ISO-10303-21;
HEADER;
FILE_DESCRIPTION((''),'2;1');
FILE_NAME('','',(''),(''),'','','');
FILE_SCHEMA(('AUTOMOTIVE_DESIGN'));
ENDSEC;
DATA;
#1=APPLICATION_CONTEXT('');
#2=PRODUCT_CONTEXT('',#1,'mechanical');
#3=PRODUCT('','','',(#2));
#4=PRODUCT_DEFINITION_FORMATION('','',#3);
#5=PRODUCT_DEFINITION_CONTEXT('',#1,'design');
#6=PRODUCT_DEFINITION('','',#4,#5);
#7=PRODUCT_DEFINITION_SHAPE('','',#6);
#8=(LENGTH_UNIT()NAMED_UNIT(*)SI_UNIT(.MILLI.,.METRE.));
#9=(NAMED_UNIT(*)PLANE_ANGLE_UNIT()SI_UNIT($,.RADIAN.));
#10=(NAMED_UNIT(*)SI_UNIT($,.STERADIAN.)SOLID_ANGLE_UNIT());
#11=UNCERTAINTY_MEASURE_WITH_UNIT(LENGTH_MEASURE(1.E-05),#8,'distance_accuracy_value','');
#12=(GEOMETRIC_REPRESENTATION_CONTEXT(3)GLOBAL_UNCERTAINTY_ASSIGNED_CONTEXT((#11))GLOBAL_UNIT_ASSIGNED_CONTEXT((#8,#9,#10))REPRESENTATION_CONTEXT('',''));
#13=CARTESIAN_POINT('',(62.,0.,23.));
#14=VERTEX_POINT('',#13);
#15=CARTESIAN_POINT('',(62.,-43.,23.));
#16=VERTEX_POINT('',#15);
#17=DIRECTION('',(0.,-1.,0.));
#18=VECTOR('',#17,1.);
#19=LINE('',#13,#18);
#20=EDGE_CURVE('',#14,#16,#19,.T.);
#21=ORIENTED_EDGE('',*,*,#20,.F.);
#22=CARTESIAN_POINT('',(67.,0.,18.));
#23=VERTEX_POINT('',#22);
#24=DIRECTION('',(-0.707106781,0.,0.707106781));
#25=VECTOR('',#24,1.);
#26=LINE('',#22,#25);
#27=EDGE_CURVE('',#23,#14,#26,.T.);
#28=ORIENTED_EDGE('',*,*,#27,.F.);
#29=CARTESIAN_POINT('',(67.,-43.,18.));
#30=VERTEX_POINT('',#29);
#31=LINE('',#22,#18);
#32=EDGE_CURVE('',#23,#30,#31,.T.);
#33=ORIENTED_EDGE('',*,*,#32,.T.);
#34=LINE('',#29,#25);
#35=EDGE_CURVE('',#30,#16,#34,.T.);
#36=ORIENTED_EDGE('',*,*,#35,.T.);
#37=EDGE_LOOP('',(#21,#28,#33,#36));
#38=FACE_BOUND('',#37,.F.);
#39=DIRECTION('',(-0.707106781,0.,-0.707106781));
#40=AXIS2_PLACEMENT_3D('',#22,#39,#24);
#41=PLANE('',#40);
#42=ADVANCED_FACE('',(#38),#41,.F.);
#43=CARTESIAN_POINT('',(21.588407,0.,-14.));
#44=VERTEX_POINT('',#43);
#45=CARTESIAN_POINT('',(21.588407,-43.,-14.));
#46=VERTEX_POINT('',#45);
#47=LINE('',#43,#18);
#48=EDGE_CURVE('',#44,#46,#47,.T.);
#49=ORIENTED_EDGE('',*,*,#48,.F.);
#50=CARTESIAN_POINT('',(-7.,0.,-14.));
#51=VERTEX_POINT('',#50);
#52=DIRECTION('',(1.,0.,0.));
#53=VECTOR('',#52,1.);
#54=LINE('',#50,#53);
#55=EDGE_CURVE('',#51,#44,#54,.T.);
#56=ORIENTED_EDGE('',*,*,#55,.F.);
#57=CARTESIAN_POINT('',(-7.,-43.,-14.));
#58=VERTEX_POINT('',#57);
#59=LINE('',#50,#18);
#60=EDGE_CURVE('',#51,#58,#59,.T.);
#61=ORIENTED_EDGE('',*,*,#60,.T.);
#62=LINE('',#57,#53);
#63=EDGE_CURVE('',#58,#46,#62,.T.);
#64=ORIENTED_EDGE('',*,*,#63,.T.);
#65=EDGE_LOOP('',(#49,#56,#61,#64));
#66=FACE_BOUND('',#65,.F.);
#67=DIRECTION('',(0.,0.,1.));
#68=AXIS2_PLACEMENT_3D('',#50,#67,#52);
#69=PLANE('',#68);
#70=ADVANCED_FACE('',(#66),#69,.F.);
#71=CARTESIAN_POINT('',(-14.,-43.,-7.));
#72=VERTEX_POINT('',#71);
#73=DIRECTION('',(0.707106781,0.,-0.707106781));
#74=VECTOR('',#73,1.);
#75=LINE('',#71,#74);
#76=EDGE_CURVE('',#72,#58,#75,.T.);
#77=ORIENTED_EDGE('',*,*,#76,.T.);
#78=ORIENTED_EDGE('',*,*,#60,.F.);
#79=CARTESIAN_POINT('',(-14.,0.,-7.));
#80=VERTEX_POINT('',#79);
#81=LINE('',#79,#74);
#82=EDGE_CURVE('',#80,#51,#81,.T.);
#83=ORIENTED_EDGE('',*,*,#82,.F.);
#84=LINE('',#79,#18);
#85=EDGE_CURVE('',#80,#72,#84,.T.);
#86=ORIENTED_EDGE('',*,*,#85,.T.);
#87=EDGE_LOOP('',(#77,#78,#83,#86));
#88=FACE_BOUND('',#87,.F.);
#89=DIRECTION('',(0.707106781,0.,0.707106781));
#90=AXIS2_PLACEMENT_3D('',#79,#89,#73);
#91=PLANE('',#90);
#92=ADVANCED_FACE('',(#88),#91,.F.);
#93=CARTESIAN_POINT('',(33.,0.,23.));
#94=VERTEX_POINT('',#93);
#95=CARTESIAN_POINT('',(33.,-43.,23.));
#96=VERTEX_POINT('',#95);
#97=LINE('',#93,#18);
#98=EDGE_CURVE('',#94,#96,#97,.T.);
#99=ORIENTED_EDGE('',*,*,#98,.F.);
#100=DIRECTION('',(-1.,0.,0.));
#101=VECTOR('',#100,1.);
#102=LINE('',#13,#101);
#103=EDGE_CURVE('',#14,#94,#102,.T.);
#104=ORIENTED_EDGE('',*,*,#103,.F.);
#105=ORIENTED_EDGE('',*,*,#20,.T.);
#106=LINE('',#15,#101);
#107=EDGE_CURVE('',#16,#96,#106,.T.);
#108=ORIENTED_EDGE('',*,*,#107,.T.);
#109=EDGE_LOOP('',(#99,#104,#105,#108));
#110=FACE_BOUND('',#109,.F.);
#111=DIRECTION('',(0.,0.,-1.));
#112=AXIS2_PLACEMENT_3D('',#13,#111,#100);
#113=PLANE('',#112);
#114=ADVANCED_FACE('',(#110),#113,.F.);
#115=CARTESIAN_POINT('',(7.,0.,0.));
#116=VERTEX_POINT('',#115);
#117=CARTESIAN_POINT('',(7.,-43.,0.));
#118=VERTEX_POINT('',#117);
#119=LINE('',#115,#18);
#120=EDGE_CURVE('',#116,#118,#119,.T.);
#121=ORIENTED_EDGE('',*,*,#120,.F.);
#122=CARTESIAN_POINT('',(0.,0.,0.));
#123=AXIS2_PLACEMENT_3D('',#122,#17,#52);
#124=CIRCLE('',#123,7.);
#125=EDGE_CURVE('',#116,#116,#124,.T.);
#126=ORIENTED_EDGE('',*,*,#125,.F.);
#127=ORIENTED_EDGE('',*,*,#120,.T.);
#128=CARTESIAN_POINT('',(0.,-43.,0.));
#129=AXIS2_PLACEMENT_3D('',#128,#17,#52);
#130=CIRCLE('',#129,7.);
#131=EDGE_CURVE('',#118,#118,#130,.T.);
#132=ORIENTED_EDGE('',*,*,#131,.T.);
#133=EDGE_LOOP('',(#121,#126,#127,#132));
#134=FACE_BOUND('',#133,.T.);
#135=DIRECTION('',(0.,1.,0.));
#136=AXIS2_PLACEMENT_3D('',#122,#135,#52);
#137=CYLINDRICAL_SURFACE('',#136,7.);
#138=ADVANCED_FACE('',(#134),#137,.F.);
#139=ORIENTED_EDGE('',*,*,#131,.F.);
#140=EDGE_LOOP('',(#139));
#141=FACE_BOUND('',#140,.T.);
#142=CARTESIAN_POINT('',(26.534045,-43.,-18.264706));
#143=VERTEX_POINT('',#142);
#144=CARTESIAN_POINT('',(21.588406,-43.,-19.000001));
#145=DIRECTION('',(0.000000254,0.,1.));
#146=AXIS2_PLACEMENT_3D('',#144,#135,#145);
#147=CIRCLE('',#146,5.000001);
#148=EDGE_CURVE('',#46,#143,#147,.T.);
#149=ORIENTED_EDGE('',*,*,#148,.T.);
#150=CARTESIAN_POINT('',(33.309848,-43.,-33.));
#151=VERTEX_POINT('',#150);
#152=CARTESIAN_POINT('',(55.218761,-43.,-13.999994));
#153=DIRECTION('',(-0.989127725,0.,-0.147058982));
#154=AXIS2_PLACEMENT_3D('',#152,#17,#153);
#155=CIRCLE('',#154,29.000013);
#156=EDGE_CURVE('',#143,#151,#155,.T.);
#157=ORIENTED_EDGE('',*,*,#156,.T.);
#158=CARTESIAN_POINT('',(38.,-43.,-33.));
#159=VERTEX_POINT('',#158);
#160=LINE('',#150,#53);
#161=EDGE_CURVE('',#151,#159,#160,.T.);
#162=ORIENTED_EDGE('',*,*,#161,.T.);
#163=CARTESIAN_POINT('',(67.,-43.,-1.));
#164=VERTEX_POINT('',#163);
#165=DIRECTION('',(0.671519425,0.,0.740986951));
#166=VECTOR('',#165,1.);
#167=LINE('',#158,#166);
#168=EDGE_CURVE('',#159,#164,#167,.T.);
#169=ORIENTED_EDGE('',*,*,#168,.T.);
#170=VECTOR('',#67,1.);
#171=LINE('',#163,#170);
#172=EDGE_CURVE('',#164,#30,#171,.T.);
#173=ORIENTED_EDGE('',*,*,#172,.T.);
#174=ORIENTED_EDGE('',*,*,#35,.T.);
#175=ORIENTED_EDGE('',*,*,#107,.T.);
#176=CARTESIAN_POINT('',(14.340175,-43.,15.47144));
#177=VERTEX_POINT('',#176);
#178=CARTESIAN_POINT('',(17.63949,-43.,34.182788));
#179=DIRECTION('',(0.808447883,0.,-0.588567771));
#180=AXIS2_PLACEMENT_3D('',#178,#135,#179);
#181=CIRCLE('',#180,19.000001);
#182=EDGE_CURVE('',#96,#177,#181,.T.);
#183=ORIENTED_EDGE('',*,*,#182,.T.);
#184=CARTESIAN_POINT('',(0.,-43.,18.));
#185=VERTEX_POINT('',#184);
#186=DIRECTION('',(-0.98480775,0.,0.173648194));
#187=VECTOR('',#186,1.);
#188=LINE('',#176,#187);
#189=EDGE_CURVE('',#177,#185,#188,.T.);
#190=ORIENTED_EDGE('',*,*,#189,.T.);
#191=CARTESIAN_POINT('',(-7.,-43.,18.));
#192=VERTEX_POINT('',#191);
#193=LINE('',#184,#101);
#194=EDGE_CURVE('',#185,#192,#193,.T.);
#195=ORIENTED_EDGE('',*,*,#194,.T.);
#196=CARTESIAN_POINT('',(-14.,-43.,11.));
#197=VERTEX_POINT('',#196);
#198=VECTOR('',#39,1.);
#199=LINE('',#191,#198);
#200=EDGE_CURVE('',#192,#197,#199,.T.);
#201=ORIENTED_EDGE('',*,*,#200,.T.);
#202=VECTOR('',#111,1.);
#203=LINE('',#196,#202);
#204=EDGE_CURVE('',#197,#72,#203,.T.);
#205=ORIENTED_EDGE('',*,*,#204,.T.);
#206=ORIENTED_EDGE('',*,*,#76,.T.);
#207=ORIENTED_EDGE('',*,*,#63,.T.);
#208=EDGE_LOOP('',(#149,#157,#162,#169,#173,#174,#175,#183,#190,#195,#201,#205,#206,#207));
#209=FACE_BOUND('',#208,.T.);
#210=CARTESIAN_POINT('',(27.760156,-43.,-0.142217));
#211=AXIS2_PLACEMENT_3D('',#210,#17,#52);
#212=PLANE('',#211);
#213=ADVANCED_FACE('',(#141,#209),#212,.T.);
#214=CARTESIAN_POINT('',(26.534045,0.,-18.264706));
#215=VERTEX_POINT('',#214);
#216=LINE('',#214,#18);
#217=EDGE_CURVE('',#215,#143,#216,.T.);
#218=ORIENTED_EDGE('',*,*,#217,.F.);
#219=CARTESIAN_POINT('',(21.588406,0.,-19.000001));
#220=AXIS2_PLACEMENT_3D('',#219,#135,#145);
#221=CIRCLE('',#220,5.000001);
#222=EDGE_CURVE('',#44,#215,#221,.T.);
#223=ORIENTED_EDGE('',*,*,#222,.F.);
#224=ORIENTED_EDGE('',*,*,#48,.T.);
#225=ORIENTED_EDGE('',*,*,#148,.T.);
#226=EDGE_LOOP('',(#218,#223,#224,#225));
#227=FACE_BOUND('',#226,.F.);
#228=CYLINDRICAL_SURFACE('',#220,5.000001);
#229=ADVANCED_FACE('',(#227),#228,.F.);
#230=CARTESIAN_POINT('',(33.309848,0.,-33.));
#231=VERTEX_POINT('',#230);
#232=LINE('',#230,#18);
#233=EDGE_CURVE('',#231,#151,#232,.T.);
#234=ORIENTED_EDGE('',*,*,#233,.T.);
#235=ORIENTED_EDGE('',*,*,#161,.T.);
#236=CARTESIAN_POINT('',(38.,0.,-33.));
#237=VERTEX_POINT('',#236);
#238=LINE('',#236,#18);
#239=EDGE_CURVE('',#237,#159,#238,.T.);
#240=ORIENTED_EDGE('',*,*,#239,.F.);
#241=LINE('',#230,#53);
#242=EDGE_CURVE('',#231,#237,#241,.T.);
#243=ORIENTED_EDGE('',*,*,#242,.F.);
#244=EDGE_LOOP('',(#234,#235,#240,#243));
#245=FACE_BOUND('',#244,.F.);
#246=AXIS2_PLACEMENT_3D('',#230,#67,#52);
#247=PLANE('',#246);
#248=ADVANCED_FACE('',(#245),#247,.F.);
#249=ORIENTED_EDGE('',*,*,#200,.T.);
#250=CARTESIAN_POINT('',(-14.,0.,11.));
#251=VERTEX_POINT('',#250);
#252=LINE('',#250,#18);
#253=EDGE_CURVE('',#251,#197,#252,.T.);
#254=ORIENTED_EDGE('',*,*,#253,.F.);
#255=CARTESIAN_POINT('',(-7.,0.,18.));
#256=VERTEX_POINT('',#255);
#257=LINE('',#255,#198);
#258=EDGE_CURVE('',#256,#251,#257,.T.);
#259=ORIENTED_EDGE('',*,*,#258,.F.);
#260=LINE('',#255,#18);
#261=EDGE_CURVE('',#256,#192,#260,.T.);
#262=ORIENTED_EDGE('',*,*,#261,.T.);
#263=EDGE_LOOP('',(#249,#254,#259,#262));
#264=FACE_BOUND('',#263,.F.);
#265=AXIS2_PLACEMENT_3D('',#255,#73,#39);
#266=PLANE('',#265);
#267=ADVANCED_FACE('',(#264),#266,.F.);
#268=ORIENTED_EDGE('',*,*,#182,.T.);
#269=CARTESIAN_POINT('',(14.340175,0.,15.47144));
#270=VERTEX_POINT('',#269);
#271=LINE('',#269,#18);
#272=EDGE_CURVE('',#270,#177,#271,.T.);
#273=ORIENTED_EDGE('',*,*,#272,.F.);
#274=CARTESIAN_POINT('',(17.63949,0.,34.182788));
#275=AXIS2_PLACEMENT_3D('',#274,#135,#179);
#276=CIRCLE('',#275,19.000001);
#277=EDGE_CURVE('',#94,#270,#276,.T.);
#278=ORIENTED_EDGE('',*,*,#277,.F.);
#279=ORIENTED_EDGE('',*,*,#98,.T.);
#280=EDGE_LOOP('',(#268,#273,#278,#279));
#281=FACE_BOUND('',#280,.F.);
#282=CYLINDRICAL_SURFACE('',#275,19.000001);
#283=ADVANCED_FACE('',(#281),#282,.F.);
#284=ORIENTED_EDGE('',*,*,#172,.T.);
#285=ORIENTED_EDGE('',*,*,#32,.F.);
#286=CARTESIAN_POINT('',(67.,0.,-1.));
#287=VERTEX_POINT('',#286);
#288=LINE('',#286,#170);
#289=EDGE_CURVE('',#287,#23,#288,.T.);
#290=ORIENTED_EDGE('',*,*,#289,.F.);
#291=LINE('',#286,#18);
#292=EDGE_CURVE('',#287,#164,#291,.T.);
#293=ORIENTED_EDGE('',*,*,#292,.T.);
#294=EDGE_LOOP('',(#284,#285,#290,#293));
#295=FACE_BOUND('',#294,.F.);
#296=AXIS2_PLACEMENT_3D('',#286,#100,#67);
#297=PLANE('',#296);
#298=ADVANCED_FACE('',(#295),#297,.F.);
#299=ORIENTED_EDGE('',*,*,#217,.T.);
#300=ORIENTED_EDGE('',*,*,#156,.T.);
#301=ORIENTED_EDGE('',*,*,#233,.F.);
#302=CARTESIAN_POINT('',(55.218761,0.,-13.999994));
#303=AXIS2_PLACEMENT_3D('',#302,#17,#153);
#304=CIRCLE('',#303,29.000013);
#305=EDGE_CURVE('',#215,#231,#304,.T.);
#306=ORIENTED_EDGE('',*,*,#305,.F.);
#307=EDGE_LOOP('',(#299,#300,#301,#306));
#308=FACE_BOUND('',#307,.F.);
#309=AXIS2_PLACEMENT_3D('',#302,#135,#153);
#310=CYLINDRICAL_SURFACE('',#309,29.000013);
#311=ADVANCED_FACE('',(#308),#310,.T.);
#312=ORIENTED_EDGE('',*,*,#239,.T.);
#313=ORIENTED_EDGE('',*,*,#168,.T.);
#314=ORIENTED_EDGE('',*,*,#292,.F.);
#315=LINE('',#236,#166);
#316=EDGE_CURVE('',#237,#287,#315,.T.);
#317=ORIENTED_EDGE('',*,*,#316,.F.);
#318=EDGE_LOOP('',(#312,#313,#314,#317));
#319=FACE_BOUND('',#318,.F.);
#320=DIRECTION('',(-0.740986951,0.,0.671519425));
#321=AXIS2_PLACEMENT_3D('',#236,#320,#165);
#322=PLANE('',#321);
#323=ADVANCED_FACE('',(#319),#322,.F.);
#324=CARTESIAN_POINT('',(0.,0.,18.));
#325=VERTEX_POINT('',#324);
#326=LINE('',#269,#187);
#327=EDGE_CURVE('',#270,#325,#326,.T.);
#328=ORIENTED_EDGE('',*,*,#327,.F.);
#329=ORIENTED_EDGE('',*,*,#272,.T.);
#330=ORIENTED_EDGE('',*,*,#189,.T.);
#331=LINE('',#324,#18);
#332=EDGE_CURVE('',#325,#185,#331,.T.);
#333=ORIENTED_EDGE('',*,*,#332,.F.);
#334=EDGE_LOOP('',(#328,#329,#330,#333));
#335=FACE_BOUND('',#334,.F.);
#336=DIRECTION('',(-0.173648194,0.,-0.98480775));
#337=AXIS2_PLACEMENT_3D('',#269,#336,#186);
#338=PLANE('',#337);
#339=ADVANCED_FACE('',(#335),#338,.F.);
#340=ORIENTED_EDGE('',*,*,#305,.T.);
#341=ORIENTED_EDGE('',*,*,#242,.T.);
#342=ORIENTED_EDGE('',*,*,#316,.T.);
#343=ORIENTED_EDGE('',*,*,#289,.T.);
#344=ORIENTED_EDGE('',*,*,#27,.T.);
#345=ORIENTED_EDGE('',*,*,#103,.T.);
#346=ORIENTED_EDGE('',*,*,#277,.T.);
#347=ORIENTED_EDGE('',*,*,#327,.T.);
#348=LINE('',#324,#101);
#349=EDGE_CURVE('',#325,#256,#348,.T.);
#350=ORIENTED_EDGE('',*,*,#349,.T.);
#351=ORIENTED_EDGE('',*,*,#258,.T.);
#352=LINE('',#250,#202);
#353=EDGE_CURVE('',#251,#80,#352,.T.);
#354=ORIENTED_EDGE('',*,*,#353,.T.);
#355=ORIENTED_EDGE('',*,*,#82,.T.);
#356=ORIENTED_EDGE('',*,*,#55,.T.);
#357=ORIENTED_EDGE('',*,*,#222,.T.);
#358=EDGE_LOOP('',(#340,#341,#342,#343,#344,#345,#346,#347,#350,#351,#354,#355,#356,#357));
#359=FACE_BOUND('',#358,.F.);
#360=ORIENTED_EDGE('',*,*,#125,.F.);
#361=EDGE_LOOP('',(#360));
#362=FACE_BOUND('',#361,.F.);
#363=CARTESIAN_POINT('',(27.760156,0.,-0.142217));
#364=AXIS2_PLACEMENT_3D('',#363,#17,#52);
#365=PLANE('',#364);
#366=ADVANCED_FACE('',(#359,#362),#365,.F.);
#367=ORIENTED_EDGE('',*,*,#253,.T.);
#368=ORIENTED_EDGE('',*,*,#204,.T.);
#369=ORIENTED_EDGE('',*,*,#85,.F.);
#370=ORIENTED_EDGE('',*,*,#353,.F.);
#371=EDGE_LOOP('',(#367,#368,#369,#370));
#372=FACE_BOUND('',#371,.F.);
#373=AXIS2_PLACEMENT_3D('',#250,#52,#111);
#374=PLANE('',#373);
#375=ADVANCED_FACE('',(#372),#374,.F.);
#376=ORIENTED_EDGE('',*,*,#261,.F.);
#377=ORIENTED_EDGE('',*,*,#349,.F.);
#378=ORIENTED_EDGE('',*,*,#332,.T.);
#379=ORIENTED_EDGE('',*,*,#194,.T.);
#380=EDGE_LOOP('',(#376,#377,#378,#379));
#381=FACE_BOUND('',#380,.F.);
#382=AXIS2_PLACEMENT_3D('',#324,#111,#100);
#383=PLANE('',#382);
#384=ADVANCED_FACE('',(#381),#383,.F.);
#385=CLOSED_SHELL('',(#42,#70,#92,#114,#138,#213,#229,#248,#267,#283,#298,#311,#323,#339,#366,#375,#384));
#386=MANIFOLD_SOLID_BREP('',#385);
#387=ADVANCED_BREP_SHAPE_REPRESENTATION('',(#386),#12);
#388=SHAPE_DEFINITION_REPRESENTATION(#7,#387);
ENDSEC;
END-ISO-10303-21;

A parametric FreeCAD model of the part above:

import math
import FreeCAD as App
import Part
import Sketcher

V = App.Vector
Q = App.Units.Quantity

doc = App.newDocument("Part")
params = doc.addObject("Spreadsheet::Sheet", "Params")
for row, (alias, value) in enumerate([
    ("sketch1_diameter", "14 mm"),
    ("sketch1_radius", "5.000001 mm"),
    ("sketch1_radius2", "19.000001 mm"),
    ("sketch1_width", "7 mm"),
    ("sketch1_width2", "29 mm"),
    ("pad1_length", "43 mm"),
], start=1):
    params.set(f"A{row}", alias)
    params.set(f"B{row}", "=" + value)
    params.setAlias(f"B{row}", alias)

body = doc.addObject("PartDesign::Body", "Body")

sketch1 = body.newObject("Sketcher::SketchObject", "Sketch")
sketch1.AttachmentSupport = (doc.getObject("XZ_Plane"), [""])
sketch1.MapMode = "FlatFace"
sketch1.addGeometry(Part.LineSegment(V(0, 18, 0), V(-7, 18, 0)), False)
sketch1.addGeometry(Part.LineSegment(V(-7, 18, 0), V(-14, 11, 0)), False)
sketch1.addGeometry(Part.LineSegment(V(-14, 11, 0), V(-14, -7, 0)), False)
sketch1.addGeometry(Part.LineSegment(V(-14, -7, 0), V(-7, -14, 0)), False)
sketch1.addGeometry(Part.LineSegment(V(-7, -14, 0), V(21.6, -14, 0)), False)
sketch1.addGeometry(Part.ArcOfCircle(Part.Circle(V(21.6, -19, 0), V(0, 0, 1), 5), math.radians(8), math.radians(90)), False)
sketch1.addGeometry(Part.ArcOfCircle(Part.Circle(V(55.2, -14, 0), V(0, 0, 1), 29), math.radians(-172), math.radians(-139)), False)
sketch1.addGeometry(Part.LineSegment(V(33.3, -33, 0), V(38, -33, 0)), False)
sketch1.addGeometry(Part.LineSegment(V(38, -33, 0), V(67, -1, 0)), False)
sketch1.addGeometry(Part.LineSegment(V(67, -1, 0), V(67, 18, 0)), False)
sketch1.addGeometry(Part.LineSegment(V(67, 18, 0), V(62, 23, 0)), False)
sketch1.addGeometry(Part.LineSegment(V(62, 23, 0), V(33, 23, 0)), False)
sketch1.addGeometry(Part.ArcOfCircle(Part.Circle(V(17.6, 34.2, 0), V(0, 0, 1), 19), math.radians(-100), math.radians(-36)), False)
sketch1.addGeometry(Part.LineSegment(V(14.3, 15.5, 0), V(0, 18, 0)), False)
sketch1.addGeometry(Part.Circle(V(0, 0, 0), V(0, 0, 1), 7), False)
sketch1.addConstraint(Sketcher.Constraint("Coincident", 0, 2, 1, 1))
sketch1.addConstraint(Sketcher.Constraint("Coincident", 1, 2, 2, 1))
sketch1.addConstraint(Sketcher.Constraint("Coincident", 2, 2, 3, 1))
sketch1.addConstraint(Sketcher.Constraint("Coincident", 3, 2, 4, 1))
sketch1.addConstraint(Sketcher.Constraint("Tangent", 4, 2, 5, 2))
sketch1.addConstraint(Sketcher.Constraint("Tangent", 5, 1, 6, 1))
sketch1.addConstraint(Sketcher.Constraint("Coincident", 6, 2, 7, 1))
sketch1.addConstraint(Sketcher.Constraint("Coincident", 7, 2, 8, 1))
sketch1.addConstraint(Sketcher.Constraint("Coincident", 8, 2, 9, 1))
sketch1.addConstraint(Sketcher.Constraint("Coincident", 9, 2, 10, 1))
sketch1.addConstraint(Sketcher.Constraint("Coincident", 10, 2, 11, 1))
sketch1.addConstraint(Sketcher.Constraint("Coincident", 11, 2, 12, 2))
sketch1.addConstraint(Sketcher.Constraint("Tangent", 12, 1, 13, 1))
sketch1.addConstraint(Sketcher.Constraint("Coincident", 13, 2, 0, 1))
sketch1.addConstraint(Sketcher.Constraint("Horizontal", 0))
sketch1.addConstraint(Sketcher.Constraint("Vertical", 2))
sketch1.addConstraint(Sketcher.Constraint("Horizontal", 4))
sketch1.addConstraint(Sketcher.Constraint("Horizontal", 7))
sketch1.addConstraint(Sketcher.Constraint("Vertical", 9))
sketch1.addConstraint(Sketcher.Constraint("Horizontal", 11))
sketch1.addConstraint(Sketcher.Constraint("Coincident", 14, 3, -1, 1))
sketch1.addConstraint(Sketcher.Constraint("PointOnObject", 13, 2, -2))
sketch1.addConstraint(Sketcher.Constraint("Perpendicular", 1, 3))
sketch1.addConstraint(Sketcher.Constraint("Parallel", 3, 10))
sketch1.addConstraint(Sketcher.Constraint("Horizontal", 0, 2, 9, 2))
sketch1.addConstraint(Sketcher.Constraint("Vertical", 0, 2, 3, 2))
sketch1.addConstraint(Sketcher.Constraint("Equal", 1, 3))
sketch1.addConstraint(Sketcher.Constraint("Diameter", 14, 14.0))
sketch1.addConstraint(Sketcher.Constraint("Radius", 5, 5.000001))
sketch1.addConstraint(Sketcher.Constraint("Radius", 12, 19.000001))
sketch1.addConstraint(Sketcher.Constraint("DistanceX", 0, 2, 0, 1, 7.0))
sketch1.addConstraint(Sketcher.Constraint("DistanceX", 11, 2, 11, 1, 29.0))
sketch1.addConstraint(Sketcher.Constraint("DistanceY", 2, 2, 2, 1, 18.0))
sketch1.addConstraint(Sketcher.Constraint("DistanceY", 9, 1, 9, 2, 19.0))
sketch1.addConstraint(Sketcher.Constraint("Angle", 13, Q("169.999999 deg")))
sketch1.addConstraint(Sketcher.Constraint("DistanceY", 5, 3, -1, 1, 19.000001))
sketch1.addConstraint(Sketcher.Constraint("DistanceY", -1, 1, 0, 2, 18.0))
sketch1.addConstraint(Sketcher.Constraint("DistanceY", 6, 2, -1, 1, 33.0))
sketch1.addConstraint(Sketcher.Constraint("DistanceX", -1, 1, 7, 2, 38.0))
sketch1.addConstraint(Sketcher.Constraint("DistanceX", -1, 1, 8, 2, 67.0))
sketch1.addConstraint(Sketcher.Constraint("DistanceX", -1, 1, 10, 2, 62.0))
sketch1.addConstraint(Sketcher.Constraint("Radius", 6, 29.000013))
sketch1.addConstraint(Sketcher.Constraint("DistanceX", 7, 1, 7, 2, 4.690152))
sketch1.addConstraint(Sketcher.Constraint("DistanceX", 4, 1, 4, 2, 28.588407))
sketch1.setExpression("Constraints[27]", "Params.sketch1_diameter")
sketch1.setExpression("Constraints[28]", "Params.sketch1_radius")
sketch1.setExpression("Constraints[29]", "Params.sketch1_radius2")
sketch1.setExpression("Constraints[30]", "Params.sketch1_width")
sketch1.setExpression("Constraints[31]", "Params.sketch1_width2")
pad1 = body.newObject("PartDesign::Pad", "Pad")
pad1.Profile = sketch1
pad1.setExpression("Length", "Params.pad1_length")

doc.recompute()
